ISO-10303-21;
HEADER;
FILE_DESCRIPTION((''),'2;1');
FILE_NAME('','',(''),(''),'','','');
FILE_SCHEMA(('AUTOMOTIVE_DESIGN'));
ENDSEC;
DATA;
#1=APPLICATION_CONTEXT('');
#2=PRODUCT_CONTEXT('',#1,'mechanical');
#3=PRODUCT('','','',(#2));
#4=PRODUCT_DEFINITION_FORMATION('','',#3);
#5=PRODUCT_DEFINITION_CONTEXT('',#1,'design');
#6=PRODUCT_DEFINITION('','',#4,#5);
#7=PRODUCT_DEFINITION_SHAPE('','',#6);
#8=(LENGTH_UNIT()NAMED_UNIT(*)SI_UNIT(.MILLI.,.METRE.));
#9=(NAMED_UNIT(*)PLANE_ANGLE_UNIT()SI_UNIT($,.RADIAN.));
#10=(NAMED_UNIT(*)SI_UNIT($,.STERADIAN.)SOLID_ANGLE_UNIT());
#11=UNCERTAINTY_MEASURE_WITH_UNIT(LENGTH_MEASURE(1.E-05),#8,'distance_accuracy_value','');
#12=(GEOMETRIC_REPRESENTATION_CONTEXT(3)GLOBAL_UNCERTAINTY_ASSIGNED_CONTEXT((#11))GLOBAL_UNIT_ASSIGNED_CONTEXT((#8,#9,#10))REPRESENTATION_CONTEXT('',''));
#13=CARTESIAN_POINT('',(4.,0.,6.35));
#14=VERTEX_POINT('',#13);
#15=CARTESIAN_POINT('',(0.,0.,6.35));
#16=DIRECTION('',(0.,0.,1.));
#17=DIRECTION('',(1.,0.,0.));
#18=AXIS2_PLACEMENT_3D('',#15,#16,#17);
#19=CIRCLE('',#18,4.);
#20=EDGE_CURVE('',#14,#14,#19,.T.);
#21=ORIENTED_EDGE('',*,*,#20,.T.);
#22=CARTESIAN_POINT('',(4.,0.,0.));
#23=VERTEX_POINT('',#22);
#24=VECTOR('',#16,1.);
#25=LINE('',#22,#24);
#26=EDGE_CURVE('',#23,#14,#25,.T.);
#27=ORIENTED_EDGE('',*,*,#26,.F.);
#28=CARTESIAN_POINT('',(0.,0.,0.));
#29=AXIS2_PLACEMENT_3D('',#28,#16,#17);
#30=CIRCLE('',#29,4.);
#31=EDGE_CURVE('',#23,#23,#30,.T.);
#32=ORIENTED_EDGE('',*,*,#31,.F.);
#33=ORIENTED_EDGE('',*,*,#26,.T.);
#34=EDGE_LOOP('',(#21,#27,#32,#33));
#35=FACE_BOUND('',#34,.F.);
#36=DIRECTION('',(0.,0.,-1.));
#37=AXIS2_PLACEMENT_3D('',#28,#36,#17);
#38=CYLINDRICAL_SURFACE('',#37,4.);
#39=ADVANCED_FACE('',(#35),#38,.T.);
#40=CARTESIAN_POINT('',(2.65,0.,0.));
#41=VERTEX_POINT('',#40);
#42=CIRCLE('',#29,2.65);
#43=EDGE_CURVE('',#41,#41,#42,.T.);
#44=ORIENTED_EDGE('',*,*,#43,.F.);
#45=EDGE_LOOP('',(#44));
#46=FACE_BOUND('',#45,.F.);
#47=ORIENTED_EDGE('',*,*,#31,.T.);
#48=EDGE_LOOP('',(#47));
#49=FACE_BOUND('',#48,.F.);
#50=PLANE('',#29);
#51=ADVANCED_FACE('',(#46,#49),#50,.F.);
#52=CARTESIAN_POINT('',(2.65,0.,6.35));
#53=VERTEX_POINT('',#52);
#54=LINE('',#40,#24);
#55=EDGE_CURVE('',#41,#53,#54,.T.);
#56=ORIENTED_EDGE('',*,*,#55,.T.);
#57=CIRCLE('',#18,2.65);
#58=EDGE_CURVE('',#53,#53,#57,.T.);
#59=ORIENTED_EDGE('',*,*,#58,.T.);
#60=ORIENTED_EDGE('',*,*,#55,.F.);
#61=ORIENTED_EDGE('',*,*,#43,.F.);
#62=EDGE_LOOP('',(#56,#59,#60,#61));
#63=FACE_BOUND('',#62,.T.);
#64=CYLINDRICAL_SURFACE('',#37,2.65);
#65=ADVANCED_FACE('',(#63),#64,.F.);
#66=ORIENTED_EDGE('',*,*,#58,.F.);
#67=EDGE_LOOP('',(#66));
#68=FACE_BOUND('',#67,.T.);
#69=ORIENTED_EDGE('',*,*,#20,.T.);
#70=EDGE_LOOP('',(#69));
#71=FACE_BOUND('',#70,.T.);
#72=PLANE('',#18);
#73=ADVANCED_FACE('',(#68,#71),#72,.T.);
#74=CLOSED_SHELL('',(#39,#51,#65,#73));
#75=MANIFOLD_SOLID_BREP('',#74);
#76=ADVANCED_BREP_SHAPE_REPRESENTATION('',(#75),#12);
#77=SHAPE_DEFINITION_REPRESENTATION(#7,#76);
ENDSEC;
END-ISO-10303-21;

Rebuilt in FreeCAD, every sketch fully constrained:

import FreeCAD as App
import Part
import Sketcher
Q = App.Units.Quantity

doc = App.newDocument("Part")
params = doc.addObject("Spreadsheet::Sheet", "Params")
for row, (alias, value) in enumerate([
    ("sketch1_diameter", "8 mm"),
    ("sketch1_diameter2", "5.3 mm"),
    ("pad1_length", "6.35 mm"),
], start=1):
    params.set(f"A{row}", alias)
    params.set(f"B{row}", "=" + value)
    params.setAlias(f"B{row}", alias)

body = doc.addObject("PartDesign::Body", "Body")

sketch1 = body.newObject("Sketcher::SketchObject", "Sketch")
sketch1.AttachmentSupport = (doc.getObject("XY_Plane"), [""])
sketch1.MapMode = "FlatFace"
sketch1.addGeometry([
    Part.Circle(App.Vector(0, 0, 0), App.Vector(0, 0, 1), 4),
    Part.Circle(App.Vector(0, 0, 0), App.Vector(0, 0, 1), 2.6),
], False)
sketch1.addConstraint([
    Sketcher.Constraint("Coincident", 0, 3, -1, 1),
    Sketcher.Constraint("Coincident", 1, 3, -1, 1),
    Sketcher.Constraint("Diameter", 0, Q("8 mm")),
    Sketcher.Constraint("Diameter", 1, Q("5.3 mm")),
])
sketch1.setExpression("Constraints[2]", "Params.sketch1_diameter")
sketch1.setExpression("Constraints[3]", "Params.sketch1_diameter2")
pad1 = body.newObject("PartDesign::Pad", "Pad")
pad1.Profile = sketch1
pad1.setExpression("Length", "Params.pad1_length")

doc.recompute()
